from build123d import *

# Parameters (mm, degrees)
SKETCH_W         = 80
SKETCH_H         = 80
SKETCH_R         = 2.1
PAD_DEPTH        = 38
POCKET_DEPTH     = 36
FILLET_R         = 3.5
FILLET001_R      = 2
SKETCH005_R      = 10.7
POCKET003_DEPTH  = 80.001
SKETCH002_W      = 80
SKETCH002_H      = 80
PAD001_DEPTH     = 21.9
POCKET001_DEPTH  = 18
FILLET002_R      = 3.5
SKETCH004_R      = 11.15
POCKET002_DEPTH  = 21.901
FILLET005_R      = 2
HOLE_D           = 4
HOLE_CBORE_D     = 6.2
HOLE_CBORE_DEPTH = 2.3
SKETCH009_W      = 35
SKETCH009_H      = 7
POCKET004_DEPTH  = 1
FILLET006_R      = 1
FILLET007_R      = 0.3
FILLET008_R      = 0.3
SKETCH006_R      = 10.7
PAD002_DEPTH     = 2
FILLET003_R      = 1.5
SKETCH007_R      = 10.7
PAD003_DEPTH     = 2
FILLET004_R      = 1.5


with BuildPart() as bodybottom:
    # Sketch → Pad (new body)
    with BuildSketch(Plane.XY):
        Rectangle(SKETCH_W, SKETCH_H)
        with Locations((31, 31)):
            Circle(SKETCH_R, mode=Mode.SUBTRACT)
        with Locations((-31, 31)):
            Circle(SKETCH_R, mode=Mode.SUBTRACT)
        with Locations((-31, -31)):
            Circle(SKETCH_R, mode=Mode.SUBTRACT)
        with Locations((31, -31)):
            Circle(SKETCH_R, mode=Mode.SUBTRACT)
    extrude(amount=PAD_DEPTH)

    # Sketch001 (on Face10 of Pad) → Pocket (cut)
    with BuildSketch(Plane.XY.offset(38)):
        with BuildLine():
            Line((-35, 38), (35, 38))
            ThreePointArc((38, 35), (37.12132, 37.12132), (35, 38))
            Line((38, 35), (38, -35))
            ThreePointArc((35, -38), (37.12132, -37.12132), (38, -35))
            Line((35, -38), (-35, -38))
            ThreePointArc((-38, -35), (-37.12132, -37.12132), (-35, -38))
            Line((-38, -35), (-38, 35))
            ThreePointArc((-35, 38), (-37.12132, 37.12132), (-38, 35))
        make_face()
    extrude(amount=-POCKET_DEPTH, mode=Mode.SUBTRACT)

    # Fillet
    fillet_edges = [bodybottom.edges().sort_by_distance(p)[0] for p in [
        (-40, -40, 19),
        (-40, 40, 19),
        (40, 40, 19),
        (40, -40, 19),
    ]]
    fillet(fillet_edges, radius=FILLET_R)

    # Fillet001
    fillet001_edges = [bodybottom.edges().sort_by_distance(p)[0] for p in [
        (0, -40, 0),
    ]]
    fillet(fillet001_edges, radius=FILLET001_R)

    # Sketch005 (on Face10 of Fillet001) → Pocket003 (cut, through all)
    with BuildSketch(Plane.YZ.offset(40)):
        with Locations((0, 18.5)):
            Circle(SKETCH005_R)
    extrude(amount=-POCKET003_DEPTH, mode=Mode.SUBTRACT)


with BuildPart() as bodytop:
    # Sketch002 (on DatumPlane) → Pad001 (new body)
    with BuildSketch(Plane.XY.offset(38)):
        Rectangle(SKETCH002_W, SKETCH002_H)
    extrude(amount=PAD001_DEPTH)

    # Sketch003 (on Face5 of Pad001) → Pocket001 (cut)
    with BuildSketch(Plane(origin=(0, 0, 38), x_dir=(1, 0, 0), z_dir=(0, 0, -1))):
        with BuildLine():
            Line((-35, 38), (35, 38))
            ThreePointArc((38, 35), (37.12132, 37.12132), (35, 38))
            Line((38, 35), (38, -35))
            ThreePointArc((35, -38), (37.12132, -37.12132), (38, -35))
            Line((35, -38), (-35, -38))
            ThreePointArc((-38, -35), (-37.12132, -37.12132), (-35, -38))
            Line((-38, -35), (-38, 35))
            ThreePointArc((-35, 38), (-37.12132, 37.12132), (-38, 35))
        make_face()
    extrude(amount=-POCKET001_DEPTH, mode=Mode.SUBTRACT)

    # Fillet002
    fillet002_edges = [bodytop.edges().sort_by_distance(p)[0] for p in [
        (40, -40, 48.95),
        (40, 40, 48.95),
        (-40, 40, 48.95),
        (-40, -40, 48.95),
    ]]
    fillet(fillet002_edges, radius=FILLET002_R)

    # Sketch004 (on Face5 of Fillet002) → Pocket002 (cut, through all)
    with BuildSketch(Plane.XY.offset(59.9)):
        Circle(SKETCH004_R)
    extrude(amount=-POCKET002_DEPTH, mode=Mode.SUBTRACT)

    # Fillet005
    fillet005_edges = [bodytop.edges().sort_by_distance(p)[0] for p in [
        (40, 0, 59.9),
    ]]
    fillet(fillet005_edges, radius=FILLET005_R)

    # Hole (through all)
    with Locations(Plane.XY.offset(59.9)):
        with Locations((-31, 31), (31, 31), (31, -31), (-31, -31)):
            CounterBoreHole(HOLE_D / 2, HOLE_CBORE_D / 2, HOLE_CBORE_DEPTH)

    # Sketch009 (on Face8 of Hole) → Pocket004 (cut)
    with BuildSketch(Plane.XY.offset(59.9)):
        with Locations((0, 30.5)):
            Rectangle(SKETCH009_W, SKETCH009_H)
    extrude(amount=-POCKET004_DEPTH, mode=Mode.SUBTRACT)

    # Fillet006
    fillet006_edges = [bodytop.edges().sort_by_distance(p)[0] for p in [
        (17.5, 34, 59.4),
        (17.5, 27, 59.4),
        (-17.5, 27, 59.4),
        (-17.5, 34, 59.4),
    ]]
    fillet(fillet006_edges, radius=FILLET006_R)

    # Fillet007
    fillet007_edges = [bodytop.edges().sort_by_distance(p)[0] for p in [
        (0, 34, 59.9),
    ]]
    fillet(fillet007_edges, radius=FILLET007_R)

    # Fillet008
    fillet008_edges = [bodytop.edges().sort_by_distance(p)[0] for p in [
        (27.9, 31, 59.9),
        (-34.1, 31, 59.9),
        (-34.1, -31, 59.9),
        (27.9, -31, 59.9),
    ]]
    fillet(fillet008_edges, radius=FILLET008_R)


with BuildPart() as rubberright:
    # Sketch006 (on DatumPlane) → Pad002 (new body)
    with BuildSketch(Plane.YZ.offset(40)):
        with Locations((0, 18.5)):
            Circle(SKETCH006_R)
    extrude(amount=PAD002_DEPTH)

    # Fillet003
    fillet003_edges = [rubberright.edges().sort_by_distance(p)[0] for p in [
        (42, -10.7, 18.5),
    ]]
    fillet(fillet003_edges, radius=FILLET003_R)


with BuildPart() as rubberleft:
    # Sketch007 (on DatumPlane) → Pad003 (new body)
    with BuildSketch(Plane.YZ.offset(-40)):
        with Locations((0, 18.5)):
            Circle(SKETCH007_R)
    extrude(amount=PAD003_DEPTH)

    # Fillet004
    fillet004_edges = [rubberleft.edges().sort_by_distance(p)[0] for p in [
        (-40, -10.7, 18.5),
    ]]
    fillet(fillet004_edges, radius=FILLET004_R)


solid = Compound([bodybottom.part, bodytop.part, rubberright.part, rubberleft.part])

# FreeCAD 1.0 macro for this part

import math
import FreeCAD as App
import Part
import Sketcher
from FreeCAD import Vector


def edges_at(feature, points):
    """Names of the edges that pass closest to the given points."""
    edges = feature.Shape.Edges
    near = lambda p: min(range(len(edges)), key=lambda i: edges[i].distToShape(Part.Vertex(*p))[0])
    return sorted({f"Edge{near(p) + 1}" for p in points})


def add_polygon(sketch, points):
    """Adds a closed chain of lines whose ends are joined by coincident constraints."""
    first, n = sketch.GeometryCount, len(points)
    for a, b in zip(points, points[1:] + points[:1]):
        sketch.addGeometry(Part.LineSegment(App.Vector(*a, 0), App.Vector(*b, 0)), False)
    for i in range(n):
        sketch.addConstraint(Sketcher.Constraint("Coincident", first + i, 2, first + (i + 1) % n, 1))

doc = App.newDocument("Part")
body = doc.addObject("PartDesign::Body", "Body")

# Sketch on XY plane
sketch1 = body.newObject("Sketcher::SketchObject", "Sketch")
sketch1.AttachmentSupport = (doc.getObject("XY_Plane"), [""])
sketch1.MapMode = "FlatFace"
add_polygon(sketch1, [(-40, 40), (-40, -40), (40, -40), (40, 40)])  # lines 0-3
sketch1.addGeometry(Part.Circle(Vector(-31, -31, 0), Vector(0, 0, 1), 2.1), False)  # 4
sketch1.addGeometry(Part.Circle(Vector(31, -31, 0), Vector(0, 0, 1), 2.1), False)  # 5
sketch1.addGeometry(Part.Circle(Vector(-31, 31, 0), Vector(0, 0, 1), 2.1), False)  # 6
sketch1.addGeometry(Part.Circle(Vector(31, 31, 0), Vector(0, 0, 1), 2.1), False)  # 7
sketch1.addConstraint([
    Sketcher.Constraint("Vertical", 0),
    Sketcher.Constraint("Horizontal", 1),
    Sketcher.Constraint("Vertical", 2),
    Sketcher.Constraint("Horizontal", 3),
    Sketcher.Constraint("Equal", 4, 5),
    Sketcher.Constraint("Equal", 5, 6),
    Sketcher.Constraint("Equal", 6, 7),
    Sketcher.Constraint("Symmetric", 5, 3, 6, 3, -1, 1),
    Sketcher.Constraint("Symmetric", 4, 3, 7, 3, -1, 1),
    Sketcher.Constraint("Symmetric", 0, 2, 2, 2, -1, 1),
    Sketcher.Constraint("Symmetric", 4, 3, 5, 3, -2),
    Sketcher.Constraint("Equal", 3, 0),
    Sketcher.Constraint("Diameter", 4, 4.2),
    Sketcher.Constraint("DistanceX", 1, 1, 1, 2, 80.0),
    Sketcher.Constraint("DistanceX", 4, 3, -1, 1, 31.0),
    Sketcher.Constraint("DistanceY", 4, 3, -1, 1, 31.0),
])
pad1 = body.newObject("PartDesign::Pad", "Pad")
pad1.Profile = sketch1
pad1.Length = 38

# Sketch on XY plane
sketch2 = body.newObject("Sketcher::SketchObject", "Sketch001")
sketch2.AttachmentSupport = (doc.getObject("XY_Plane"), [""])
sketch2.MapMode = "FlatFace"
sketch2.AttachmentOffset = App.Placement(Vector(0, 0, 38), App.Rotation())
sketch2.addGeometry([
    Part.LineSegment(Vector(35, 38, 0), Vector(-35, 38, 0)),  # 0
    Part.ArcOfCircle(Part.Circle(Vector(-34.999999, 34.999999, 0), Vector(0, 0, 1), 3.000001), math.radians(90.000022), math.radians(179.999978)),  # 1
    Part.LineSegment(Vector(-38, 35, 0), Vector(-38, -35, 0)),  # 2
    Part.ArcOfCircle(Part.Circle(Vector(-34.999999, -34.999999, 0), Vector(0, 0, 1), 3.000001), math.radians(-179.999978), math.radians(-90.000022)),  # 3
    Part.LineSegment(Vector(-35, -38, 0), Vector(35, -38, 0)),  # 4
    Part.ArcOfCircle(Part.Circle(Vector(34.999999, -34.999999, 0), Vector(0, 0, 1), 3.000001), math.radians(-89.999978), math.radians(-0.000022)),  # 5
    Part.LineSegment(Vector(38, -35, 0), Vector(38, 35, 0)),  # 6
    Part.ArcOfCircle(Part.Circle(Vector(34.999999, 34.999999, 0), Vector(0, 0, 1), 3.000001), math.radians(0.000022), math.radians(89.999978)),  # 7
], False)
sketch2.addConstraint([
    Sketcher.Constraint("Tangent", 0, 2, 1, 1),
    Sketcher.Constraint("Tangent", 1, 2, 2, 1),
    Sketcher.Constraint("Tangent", 2, 2, 3, 1),
    Sketcher.Constraint("Tangent", 3, 2, 4, 1),
    Sketcher.Constraint("Tangent", 4, 2, 5, 1),
    Sketcher.Constraint("Tangent", 5, 2, 6, 1),
    Sketcher.Constraint("Tangent", 6, 2, 7, 1),
    Sketcher.Constraint("Tangent", 7, 2, 0, 1),
    Sketcher.Constraint("Horizontal", 0),
    Sketcher.Constraint("Vertical", 2),
    Sketcher.Constraint("Horizontal", 4),
    Sketcher.Constraint("Vertical", 6),
    Sketcher.Constraint("Equal", 1, 3),
    Sketcher.Constraint("Equal", 3, 5),
    Sketcher.Constraint("Equal", 5, 7),
    Sketcher.Constraint("Symmetric", 1, 3, 5, 3, -1, 1),
    Sketcher.Constraint("Equal", 4, 2),
    Sketcher.Constraint("Radius", 1, 3.000001),
    Sketcher.Constraint("DistanceX", 0, 2, 0, 1, 70.0),
])
pocket1 = body.newObject("PartDesign::Pocket", "Pocket")
pocket1.Profile = sketch2
pocket1.Length = 36
doc.recompute()

fillet = body.newObject("PartDesign::Fillet", "Fillet")
fillet.Base = (pocket1, edges_at(pocket1, [
    (-40, -40, 19),
    (-40, 40, 19),
    (40, 40, 19),
    (40, -40, 19),
]))
fillet.Radius = 3.5
doc.recompute()

fillet2 = body.newObject("PartDesign::Fillet", "Fillet001")
fillet2.Base = (fillet, edges_at(fillet, [(0, -40, 0)]))
fillet2.Radius = 2

# Sketch on YZ plane
sketch3 = body.newObject("Sketcher::SketchObject", "Sketch002")
sketch3.AttachmentSupport = (doc.getObject("YZ_Plane"), [""])
sketch3.MapMode = "FlatFace"
sketch3.AttachmentOffset = App.Placement(Vector(0, 0, 40), App.Rotation())
sketch3.addGeometry(Part.Circle(Vector(0, 18.5, 0), Vector(0, 0, 1), 10.7), False)
sketch3.addConstraint([
    Sketcher.Constraint("PointOnObject", 0, 3, -2),
    Sketcher.Constraint("Diameter", 0, 21.4),
    Sketcher.Constraint("DistanceY", -1, 1, 0, 3, 18.5),
])
pocket2 = body.newObject("PartDesign::Pocket", "Pocket001")
pocket2.Profile = sketch3
pocket2.Type = "ThroughAll"
body2 = doc.addObject("PartDesign::Body", "Body001")

# Sketch on XY plane
sketch4 = body2.newObject("Sketcher::SketchObject", "Sketch003")
sketch4.AttachmentSupport = (doc.getObject("XY_Plane001"), [""])
sketch4.MapMode = "FlatFace"
sketch4.AttachmentOffset = App.Placement(Vector(0, 0, 38), App.Rotation())
add_polygon(sketch4, [(-40, 40), (-40, -40), (40, -40), (40, 40)])  # lines 0-3
sketch4.addConstraint([
    Sketcher.Constraint("Vertical", 0),
    Sketcher.Constraint("Horizontal", 1),
    Sketcher.Constraint("Vertical", 2),
    Sketcher.Constraint("Horizontal", 3),
    Sketcher.Constraint("Symmetric", 0, 2, 2, 2, -1, 1),
    Sketcher.Constraint("Equal", 3, 0),
    Sketcher.Constraint("DistanceX", 1, 1, 1, 2, 80.0),
])
pad2 = body2.newObject("PartDesign::Pad", "Pad001")
pad2.Profile = sketch4
pad2.Length = 21.9

# Sketch on XY plane
sketch5 = body2.newObject("Sketcher::SketchObject", "Sketch004")
sketch5.AttachmentSupport = (doc.getObject("XY_Plane001"), [""])
sketch5.MapMode = "FlatFace"
sketch5.AttachmentOffset = App.Placement(Vector(0, 0, 38), App.Rotation())
sketch5.addGeometry([
    Part.LineSegment(Vector(35, -38, 0), Vector(-35, -38, 0)),  # 0
    Part.ArcOfCircle(Part.Circle(Vector(-34.999999, -34.999999, 0), Vector(0, 0, 1), 3.000001), math.radians(-179.999978), math.radians(-90.000022)),  # 1
    Part.LineSegment(Vector(-38, -35, 0), Vector(-38, 35, 0)),  # 2
    Part.ArcOfCircle(Part.Circle(Vector(-34.999999, 34.999999, 0), Vector(0, 0, 1), 3.000001), math.radians(90.000022), math.radians(179.999978)),  # 3
    Part.LineSegment(Vector(-35, 38, 0), Vector(35, 38, 0)),  # 4
    Part.ArcOfCircle(Part.Circle(Vector(34.999999, 34.999999, 0), Vector(0, 0, 1), 3.000001), math.radians(0.000022), math.radians(89.999978)),  # 5
    Part.LineSegment(Vector(38, 35, 0), Vector(38, -35, 0)),  # 6
    Part.ArcOfCircle(Part.Circle(Vector(34.999999, -34.999999, 0), Vector(0, 0, 1), 3.000001), math.radians(-89.999978), math.radians(-0.000022)),  # 7
], False)
sketch5.addConstraint([
    Sketcher.Constraint("Tangent", 0, 2, 1, 2),
    Sketcher.Constraint("Tangent", 1, 1, 2, 1),
    Sketcher.Constraint("Tangent", 2, 2, 3, 2),
    Sketcher.Constraint("Tangent", 3, 1, 4, 1),
    Sketcher.Constraint("Tangent", 4, 2, 5, 2),
    Sketcher.Constraint("Tangent", 5, 1, 6, 1),
    Sketcher.Constraint("Tangent", 6, 2, 7, 2),
    Sketcher.Constraint("Tangent", 7, 1, 0, 1),
    Sketcher.Constraint("Horizontal", 0),
    Sketcher.Constraint("Vertical", 2),
    Sketcher.Constraint("Horizontal", 4),
    Sketcher.Constraint("Vertical", 6),
    Sketcher.Constraint("Equal", 1, 3),
    Sketcher.Constraint("Equal", 3, 5),
    Sketcher.Constraint("Equal", 5, 7),
    Sketcher.Constraint("Symmetric", 1, 3, 5, 3, -1, 1),
    Sketcher.Constraint("Equal", 4, 2),
    Sketcher.Constraint("Radius", 1, 3.000001),
    Sketcher.Constraint("DistanceX", 0, 2, 0, 1, 70.0),
])
pocket3 = body2.newObject("PartDesign::Pocket", "Pocket002")
pocket3.Profile = sketch5
pocket3.Length = 18
pocket3.Reversed = True
doc.recompute()

fillet3 = body2.newObject("PartDesign::Fillet", "Fillet002")
fillet3.Base = (pocket3, edges_at(pocket3, [
    (40, -40, 48.95),
    (40, 40, 48.95),
    (-40, 40, 48.95),
    (-40, -40, 48.95),
]))
fillet3.Radius = 3.5

# Sketch on XY plane
sketch6 = body2.newObject("Sketcher::SketchObject", "Sketch005")
sketch6.AttachmentSupport = (doc.getObject("XY_Plane001"), [""])
sketch6.MapMode = "FlatFace"
sketch6.AttachmentOffset = App.Placement(Vector(0, 0, 59.9), App.Rotation())
sketch6.addGeometry(Part.Circle(Vector(0, 0, 0), Vector(0, 0, 1), 11.15), False)
sketch6.addConstraint([
    Sketcher.Constraint("Coincident", 0, 3, -1, 1),
    Sketcher.Constraint("Diameter", 0, 22.3),
])
pocket4 = body2.newObject("PartDesign::Pocket", "Pocket003")
pocket4.Profile = sketch6
pocket4.Type = "ThroughAll"
doc.recompute()

fillet4 = body2.newObject("PartDesign::Fillet", "Fillet003")
fillet4.Base = (pocket4, edges_at(pocket4, [(40, 0, 59.9)]))
fillet4.Radius = 2

# Sketch on XY plane
sketch7 = body2.newObject("Sketcher::SketchObject", "Sketch006")
sketch7.AttachmentSupport = (doc.getObject("XY_Plane001"), [""])
sketch7.MapMode = "FlatFace"
sketch7.AttachmentOffset = App.Placement(Vector(0, 0, 59.9), App.Rotation())
sketch7.addGeometry([
    Part.Circle(Vector(-31, 31, 0), Vector(0, 0, 1), 2),
    Part.Circle(Vector(31, 31, 0), Vector(0, 0, 1), 2),
    Part.Circle(Vector(31, -31, 0), Vector(0, 0, 1), 2),
    Part.Circle(Vector(-31, -31, 0), Vector(0, 0, 1), 2),
], False)
sketch7.addConstraint([
    Sketcher.Constraint("Equal", 0, 1),
    Sketcher.Constraint("Equal", 1, 2),
    Sketcher.Constraint("Equal", 2, 3),
    Sketcher.Constraint("Symmetric", 0, 3, 2, 3, -1, 1),
    Sketcher.Constraint("Symmetric", 1, 3, 3, 3, -1, 1),
    Sketcher.Constraint("Symmetric", 0, 3, 1, 3, -2),
    Sketcher.Constraint("Diameter", 0, 4.0),
    Sketcher.Constraint("DistanceX", 0, 3, -1, 1, 31.0),
    Sketcher.Constraint("DistanceY", -1, 1, 0, 3, 31.0),
])
doc.recompute()
hole = body2.newObject("PartDesign::Hole", "Hole")
hole.Profile = sketch7
hole.ThreadType = "None"
hole.Diameter = 4
hole.DepthType = "ThroughAll"
hole.HoleCutType = "Counterbore"
hole.HoleCutDiameter = 6.2
hole.HoleCutDepth = 2.3

# Sketch on XY plane
sketch8 = body2.newObject("Sketcher::SketchObject", "Sketch007")
sketch8.AttachmentSupport = (doc.getObject("XY_Plane001"), [""])
sketch8.MapMode = "FlatFace"
sketch8.AttachmentOffset = App.Placement(Vector(0, 0, 59.9), App.Rotation())
add_polygon(sketch8, [(-17.5, 34), (-17.5, 27), (17.5, 27), (17.5, 34)])  # lines 0-3
sketch8.addConstraint([
    Sketcher.Constraint("Vertical", 0),
    Sketcher.Constraint("Horizontal", 1),
    Sketcher.Constraint("Vertical", 2),
    Sketcher.Constraint("Horizontal", 3),
    Sketcher.Constraint("DistanceX", 1, 1, 1, 2, 35.0),
    Sketcher.Constraint("DistanceY", 0, 2, 0, 1, 7.0),
    Sketcher.Constraint("DistanceY", -1, 1, 0, 2, 27.0),
    Sketcher.Constraint("DistanceX", 0, 2, -1, 1, 17.5),
])
pocket5 = body2.newObject("PartDesign::Pocket", "Pocket004")
pocket5.Profile = sketch8
pocket5.Length = 1
doc.recompute()

fillet5 = body2.newObject("PartDesign::Fillet", "Fillet004")
fillet5.Base = (pocket5, edges_at(pocket5, [
    (17.5, 34, 59.4),
    (17.5, 27, 59.4),
    (-17.5, 27, 59.4),
    (-17.5, 34, 59.4),
]))
fillet5.Radius = 1
doc.recompute()

fillet6 = body2.newObject("PartDesign::Fillet", "Fillet005")
fillet6.Base = (fillet5, edges_at(fillet5, [(0, 34, 59.9)]))
fillet6.Radius = 0.3
doc.recompute()

fillet7 = body2.newObject("PartDesign::Fillet", "Fillet006")
fillet7.Base = (fillet6, edges_at(fillet6, [
    (27.9, 31, 59.9),
    (-34.1, 31, 59.9),
    (-34.1, -31, 59.9),
    (27.9, -31, 59.9),
]))
fillet7.Radius = 0.3
body3 = doc.addObject("PartDesign::Body", "Body002")

# Sketch on YZ plane
sketch9 = body3.newObject("Sketcher::SketchObject", "Sketch008")
sketch9.AttachmentSupport = (doc.getObject("YZ_Plane002"), [""])
sketch9.MapMode = "FlatFace"
sketch9.AttachmentOffset = App.Placement(Vector(0, 0, 40), App.Rotation())
sketch9.addGeometry(Part.Circle(Vector(0, 18.5, 0), Vector(0, 0, 1), 10.7), False)
sketch9.addConstraint([
    Sketcher.Constraint("PointOnObject", 0, 3, -2),
    Sketcher.Constraint("Diameter", 0, 21.4),
    Sketcher.Constraint("DistanceY", -1, 1, 0, 3, 18.5),
])
pad3 = body3.newObject("PartDesign::Pad", "Pad002")
pad3.Profile = sketch9
pad3.Length = 2
doc.recompute()

fillet8 = body3.newObject("PartDesign::Fillet", "Fillet007")
fillet8.Base = (pad3, edges_at(pad3, [(42, -10.7, 18.5)]))
fillet8.Radius = 1.5
body4 = doc.addObject("PartDesign::Body", "Body003")

# Sketch on YZ plane
sketch10 = body4.newObject("Sketcher::SketchObject", "Sketch009")
sketch10.AttachmentSupport = (doc.getObject("YZ_Plane003"), [""])
sketch10.MapMode = "FlatFace"
sketch10.AttachmentOffset = App.Placement(Vector(0, 0, -40), App.Rotation())
sketch10.addGeometry(Part.Circle(Vector(0, 18.5, 0), Vector(0, 0, 1), 10.7), False)
sketch10.addConstraint([
    Sketcher.Constraint("PointOnObject", 0, 3, -2),
    Sketcher.Constraint("Diameter", 0, 21.4),
    Sketcher.Constraint("DistanceY", -1, 1, 0, 3, 18.5),
])
pad4 = body4.newObject("PartDesign::Pad", "Pad003")
pad4.Profile = sketch10
pad4.Length = 2
doc.recompute()

fillet9 = body4.newObject("PartDesign::Fillet", "Fillet008")
fillet9.Base = (pad4, edges_at(pad4, [(-40, -10.7, 18.5)]))
fillet9.Radius = 1.5

doc.recompute()
